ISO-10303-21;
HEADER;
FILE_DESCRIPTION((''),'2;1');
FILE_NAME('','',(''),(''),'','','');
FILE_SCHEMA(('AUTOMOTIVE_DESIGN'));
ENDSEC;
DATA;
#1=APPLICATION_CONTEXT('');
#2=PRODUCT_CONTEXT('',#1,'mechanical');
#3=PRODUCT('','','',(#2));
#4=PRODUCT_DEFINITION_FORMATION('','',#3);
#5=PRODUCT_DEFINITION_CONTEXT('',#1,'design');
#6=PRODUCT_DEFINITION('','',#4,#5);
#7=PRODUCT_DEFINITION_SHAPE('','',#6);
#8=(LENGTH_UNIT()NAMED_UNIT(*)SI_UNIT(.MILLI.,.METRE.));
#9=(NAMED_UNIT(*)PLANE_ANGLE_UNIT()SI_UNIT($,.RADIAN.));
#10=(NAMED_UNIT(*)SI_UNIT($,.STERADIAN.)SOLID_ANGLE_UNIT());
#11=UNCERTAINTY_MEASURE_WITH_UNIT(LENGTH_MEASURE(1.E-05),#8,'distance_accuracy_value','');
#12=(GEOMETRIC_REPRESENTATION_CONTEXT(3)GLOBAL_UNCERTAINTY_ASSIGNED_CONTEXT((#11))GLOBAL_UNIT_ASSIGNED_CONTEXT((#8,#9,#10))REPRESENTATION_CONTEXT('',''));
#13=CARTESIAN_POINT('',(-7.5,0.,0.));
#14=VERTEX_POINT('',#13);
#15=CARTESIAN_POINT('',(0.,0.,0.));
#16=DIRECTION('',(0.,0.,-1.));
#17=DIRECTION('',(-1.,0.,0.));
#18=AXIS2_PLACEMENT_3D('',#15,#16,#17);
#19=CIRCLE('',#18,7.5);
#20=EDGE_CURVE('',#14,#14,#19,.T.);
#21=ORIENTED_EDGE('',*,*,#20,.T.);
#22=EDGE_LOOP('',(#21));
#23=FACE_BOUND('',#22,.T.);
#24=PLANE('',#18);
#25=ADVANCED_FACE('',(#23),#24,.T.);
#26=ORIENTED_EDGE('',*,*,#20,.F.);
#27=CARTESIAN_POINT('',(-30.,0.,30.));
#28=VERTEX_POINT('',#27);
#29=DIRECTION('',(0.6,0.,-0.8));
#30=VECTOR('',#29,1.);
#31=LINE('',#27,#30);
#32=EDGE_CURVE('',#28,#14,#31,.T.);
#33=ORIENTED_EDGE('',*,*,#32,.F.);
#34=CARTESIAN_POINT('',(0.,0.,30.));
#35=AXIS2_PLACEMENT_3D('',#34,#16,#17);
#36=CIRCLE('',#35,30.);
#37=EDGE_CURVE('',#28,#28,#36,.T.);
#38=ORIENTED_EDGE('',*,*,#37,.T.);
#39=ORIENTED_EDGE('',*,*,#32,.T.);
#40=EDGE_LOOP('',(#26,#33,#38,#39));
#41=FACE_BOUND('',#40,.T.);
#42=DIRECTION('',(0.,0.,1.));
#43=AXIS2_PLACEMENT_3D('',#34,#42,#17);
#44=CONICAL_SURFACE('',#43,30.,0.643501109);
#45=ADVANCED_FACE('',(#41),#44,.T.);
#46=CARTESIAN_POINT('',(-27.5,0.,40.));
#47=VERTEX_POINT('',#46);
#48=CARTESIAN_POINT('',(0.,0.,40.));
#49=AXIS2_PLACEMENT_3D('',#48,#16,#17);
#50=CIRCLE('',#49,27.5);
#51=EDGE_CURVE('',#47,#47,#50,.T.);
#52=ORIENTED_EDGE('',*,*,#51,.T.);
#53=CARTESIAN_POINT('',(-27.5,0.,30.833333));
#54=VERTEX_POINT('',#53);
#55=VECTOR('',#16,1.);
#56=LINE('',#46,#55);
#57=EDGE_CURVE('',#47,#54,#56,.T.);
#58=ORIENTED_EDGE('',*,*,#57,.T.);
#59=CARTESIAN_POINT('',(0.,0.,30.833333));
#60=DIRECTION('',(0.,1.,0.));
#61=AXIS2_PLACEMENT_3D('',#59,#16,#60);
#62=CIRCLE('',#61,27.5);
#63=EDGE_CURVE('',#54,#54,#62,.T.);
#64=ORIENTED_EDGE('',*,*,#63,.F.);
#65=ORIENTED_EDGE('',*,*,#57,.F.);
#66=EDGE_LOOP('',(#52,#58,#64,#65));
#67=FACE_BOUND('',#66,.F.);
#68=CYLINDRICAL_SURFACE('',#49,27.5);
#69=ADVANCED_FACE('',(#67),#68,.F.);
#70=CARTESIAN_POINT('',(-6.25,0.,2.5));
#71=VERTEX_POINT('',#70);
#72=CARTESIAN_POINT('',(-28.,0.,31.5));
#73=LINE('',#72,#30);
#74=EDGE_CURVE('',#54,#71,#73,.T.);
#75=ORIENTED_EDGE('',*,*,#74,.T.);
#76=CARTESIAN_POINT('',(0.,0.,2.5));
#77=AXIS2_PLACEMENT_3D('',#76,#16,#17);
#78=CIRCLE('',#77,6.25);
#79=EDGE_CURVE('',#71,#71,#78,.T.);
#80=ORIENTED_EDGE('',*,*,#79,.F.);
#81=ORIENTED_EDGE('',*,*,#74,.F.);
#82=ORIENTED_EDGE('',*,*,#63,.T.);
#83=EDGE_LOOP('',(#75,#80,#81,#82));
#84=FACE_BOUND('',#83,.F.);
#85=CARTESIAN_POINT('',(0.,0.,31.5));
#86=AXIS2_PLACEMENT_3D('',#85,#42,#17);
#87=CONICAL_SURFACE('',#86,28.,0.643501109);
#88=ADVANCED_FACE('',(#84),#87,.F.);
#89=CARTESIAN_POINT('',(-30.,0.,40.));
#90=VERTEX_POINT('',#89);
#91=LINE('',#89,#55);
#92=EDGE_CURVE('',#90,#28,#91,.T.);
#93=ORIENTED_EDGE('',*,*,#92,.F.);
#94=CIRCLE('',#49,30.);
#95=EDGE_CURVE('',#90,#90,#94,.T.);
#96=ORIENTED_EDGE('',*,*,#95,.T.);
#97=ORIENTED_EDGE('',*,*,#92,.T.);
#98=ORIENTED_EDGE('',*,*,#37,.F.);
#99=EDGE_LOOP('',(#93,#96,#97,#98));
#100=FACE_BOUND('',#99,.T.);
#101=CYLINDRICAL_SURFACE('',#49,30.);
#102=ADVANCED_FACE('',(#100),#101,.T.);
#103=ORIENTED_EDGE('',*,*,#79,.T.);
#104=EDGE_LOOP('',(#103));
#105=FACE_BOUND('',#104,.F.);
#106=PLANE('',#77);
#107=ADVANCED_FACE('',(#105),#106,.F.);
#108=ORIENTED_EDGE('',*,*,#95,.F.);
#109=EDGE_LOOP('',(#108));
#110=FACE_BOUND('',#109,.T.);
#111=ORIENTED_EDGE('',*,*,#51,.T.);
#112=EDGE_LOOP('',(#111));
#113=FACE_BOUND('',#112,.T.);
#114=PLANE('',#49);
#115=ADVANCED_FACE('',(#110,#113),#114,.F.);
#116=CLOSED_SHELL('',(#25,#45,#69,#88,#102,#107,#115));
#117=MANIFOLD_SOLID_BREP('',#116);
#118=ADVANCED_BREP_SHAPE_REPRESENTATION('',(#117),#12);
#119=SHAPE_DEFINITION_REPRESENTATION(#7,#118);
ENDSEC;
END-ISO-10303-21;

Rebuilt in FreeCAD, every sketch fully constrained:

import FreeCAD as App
import Part
import Sketcher
Q = App.Units.Quantity


def faces_at(feature, points):
    """Names of the faces that lie closest to the given points."""
    faces = feature.Shape.Faces
    near = lambda p: min(range(len(faces)), key=lambda i: faces[i].distToShape(Part.Vertex(*p))[0])
    return sorted({f"Face{near(p) + 1}" for p in points})


def add_polygon(sketch, points):
    """Adds a closed chain of lines whose ends are joined by coincident constraints."""
    first, n = sketch.GeometryCount, len(points)
    for a, b in zip(points, points[1:] + points[:1]):
        sketch.addGeometry(Part.LineSegment(App.Vector(*a, 0), App.Vector(*b, 0)), False)
    for i in range(n):
        sketch.addConstraint(Sketcher.Constraint("Coincident", first + i, 2, first + (i + 1) % n, 1))

doc = App.newDocument("Part")
body = doc.addObject("PartDesign::Body", "Body")

# Sketch on XZ plane
sketch1 = doc.addObject("Sketcher::SketchObject", "Sketch")
body.addObject(sketch1)
sketch1.AttachmentSupport = (doc.XZ_Plane, [""])
sketch1.MapMode = "FlatFace"
add_polygon(sketch1, [(-30, 40), (-30, 30), (-8, 0), (0, 0), (0, 40)])  # lines 0-4
sketch1.addConstraint([
    Sketcher.Constraint("Vertical", 0),
    Sketcher.Constraint("Horizontal", 2),
    Sketcher.Constraint("Vertical", 3),
    Sketcher.Constraint("Horizontal", 4),
    Sketcher.Constraint("Coincident", 2, 2, -1, 1),
    Sketcher.Constraint("DistanceX", 4, 2, 4, 1, Q("30 mm")),
    Sketcher.Constraint("DistanceY", 0, 2, 0, 1, Q("10 mm")),
    Sketcher.Constraint("DistanceY", 3, 1, 3, 2, Q("40 mm")),
    Sketcher.Constraint("DistanceX", 2, 1, 2, 2, Q("7.5 mm")),
])
revolution = doc.addObject("PartDesign::Revolution", "Revolution")
body.addObject(revolution)
revolution.Profile = sketch1
revolution.ReferenceAxis = (sketch1, ["V_Axis"])
revolution.Angle = 360
doc.recompute()

thickness = doc.addObject("PartDesign::Thickness", "Thickness")
body.addObject(thickness)
thickness.Base = (revolution, faces_at(revolution, [(0, 0, 40)]))
thickness.Value = 2.5
thickness.Reversed = True
thickness.Join = "Arc"

doc.recompute()
